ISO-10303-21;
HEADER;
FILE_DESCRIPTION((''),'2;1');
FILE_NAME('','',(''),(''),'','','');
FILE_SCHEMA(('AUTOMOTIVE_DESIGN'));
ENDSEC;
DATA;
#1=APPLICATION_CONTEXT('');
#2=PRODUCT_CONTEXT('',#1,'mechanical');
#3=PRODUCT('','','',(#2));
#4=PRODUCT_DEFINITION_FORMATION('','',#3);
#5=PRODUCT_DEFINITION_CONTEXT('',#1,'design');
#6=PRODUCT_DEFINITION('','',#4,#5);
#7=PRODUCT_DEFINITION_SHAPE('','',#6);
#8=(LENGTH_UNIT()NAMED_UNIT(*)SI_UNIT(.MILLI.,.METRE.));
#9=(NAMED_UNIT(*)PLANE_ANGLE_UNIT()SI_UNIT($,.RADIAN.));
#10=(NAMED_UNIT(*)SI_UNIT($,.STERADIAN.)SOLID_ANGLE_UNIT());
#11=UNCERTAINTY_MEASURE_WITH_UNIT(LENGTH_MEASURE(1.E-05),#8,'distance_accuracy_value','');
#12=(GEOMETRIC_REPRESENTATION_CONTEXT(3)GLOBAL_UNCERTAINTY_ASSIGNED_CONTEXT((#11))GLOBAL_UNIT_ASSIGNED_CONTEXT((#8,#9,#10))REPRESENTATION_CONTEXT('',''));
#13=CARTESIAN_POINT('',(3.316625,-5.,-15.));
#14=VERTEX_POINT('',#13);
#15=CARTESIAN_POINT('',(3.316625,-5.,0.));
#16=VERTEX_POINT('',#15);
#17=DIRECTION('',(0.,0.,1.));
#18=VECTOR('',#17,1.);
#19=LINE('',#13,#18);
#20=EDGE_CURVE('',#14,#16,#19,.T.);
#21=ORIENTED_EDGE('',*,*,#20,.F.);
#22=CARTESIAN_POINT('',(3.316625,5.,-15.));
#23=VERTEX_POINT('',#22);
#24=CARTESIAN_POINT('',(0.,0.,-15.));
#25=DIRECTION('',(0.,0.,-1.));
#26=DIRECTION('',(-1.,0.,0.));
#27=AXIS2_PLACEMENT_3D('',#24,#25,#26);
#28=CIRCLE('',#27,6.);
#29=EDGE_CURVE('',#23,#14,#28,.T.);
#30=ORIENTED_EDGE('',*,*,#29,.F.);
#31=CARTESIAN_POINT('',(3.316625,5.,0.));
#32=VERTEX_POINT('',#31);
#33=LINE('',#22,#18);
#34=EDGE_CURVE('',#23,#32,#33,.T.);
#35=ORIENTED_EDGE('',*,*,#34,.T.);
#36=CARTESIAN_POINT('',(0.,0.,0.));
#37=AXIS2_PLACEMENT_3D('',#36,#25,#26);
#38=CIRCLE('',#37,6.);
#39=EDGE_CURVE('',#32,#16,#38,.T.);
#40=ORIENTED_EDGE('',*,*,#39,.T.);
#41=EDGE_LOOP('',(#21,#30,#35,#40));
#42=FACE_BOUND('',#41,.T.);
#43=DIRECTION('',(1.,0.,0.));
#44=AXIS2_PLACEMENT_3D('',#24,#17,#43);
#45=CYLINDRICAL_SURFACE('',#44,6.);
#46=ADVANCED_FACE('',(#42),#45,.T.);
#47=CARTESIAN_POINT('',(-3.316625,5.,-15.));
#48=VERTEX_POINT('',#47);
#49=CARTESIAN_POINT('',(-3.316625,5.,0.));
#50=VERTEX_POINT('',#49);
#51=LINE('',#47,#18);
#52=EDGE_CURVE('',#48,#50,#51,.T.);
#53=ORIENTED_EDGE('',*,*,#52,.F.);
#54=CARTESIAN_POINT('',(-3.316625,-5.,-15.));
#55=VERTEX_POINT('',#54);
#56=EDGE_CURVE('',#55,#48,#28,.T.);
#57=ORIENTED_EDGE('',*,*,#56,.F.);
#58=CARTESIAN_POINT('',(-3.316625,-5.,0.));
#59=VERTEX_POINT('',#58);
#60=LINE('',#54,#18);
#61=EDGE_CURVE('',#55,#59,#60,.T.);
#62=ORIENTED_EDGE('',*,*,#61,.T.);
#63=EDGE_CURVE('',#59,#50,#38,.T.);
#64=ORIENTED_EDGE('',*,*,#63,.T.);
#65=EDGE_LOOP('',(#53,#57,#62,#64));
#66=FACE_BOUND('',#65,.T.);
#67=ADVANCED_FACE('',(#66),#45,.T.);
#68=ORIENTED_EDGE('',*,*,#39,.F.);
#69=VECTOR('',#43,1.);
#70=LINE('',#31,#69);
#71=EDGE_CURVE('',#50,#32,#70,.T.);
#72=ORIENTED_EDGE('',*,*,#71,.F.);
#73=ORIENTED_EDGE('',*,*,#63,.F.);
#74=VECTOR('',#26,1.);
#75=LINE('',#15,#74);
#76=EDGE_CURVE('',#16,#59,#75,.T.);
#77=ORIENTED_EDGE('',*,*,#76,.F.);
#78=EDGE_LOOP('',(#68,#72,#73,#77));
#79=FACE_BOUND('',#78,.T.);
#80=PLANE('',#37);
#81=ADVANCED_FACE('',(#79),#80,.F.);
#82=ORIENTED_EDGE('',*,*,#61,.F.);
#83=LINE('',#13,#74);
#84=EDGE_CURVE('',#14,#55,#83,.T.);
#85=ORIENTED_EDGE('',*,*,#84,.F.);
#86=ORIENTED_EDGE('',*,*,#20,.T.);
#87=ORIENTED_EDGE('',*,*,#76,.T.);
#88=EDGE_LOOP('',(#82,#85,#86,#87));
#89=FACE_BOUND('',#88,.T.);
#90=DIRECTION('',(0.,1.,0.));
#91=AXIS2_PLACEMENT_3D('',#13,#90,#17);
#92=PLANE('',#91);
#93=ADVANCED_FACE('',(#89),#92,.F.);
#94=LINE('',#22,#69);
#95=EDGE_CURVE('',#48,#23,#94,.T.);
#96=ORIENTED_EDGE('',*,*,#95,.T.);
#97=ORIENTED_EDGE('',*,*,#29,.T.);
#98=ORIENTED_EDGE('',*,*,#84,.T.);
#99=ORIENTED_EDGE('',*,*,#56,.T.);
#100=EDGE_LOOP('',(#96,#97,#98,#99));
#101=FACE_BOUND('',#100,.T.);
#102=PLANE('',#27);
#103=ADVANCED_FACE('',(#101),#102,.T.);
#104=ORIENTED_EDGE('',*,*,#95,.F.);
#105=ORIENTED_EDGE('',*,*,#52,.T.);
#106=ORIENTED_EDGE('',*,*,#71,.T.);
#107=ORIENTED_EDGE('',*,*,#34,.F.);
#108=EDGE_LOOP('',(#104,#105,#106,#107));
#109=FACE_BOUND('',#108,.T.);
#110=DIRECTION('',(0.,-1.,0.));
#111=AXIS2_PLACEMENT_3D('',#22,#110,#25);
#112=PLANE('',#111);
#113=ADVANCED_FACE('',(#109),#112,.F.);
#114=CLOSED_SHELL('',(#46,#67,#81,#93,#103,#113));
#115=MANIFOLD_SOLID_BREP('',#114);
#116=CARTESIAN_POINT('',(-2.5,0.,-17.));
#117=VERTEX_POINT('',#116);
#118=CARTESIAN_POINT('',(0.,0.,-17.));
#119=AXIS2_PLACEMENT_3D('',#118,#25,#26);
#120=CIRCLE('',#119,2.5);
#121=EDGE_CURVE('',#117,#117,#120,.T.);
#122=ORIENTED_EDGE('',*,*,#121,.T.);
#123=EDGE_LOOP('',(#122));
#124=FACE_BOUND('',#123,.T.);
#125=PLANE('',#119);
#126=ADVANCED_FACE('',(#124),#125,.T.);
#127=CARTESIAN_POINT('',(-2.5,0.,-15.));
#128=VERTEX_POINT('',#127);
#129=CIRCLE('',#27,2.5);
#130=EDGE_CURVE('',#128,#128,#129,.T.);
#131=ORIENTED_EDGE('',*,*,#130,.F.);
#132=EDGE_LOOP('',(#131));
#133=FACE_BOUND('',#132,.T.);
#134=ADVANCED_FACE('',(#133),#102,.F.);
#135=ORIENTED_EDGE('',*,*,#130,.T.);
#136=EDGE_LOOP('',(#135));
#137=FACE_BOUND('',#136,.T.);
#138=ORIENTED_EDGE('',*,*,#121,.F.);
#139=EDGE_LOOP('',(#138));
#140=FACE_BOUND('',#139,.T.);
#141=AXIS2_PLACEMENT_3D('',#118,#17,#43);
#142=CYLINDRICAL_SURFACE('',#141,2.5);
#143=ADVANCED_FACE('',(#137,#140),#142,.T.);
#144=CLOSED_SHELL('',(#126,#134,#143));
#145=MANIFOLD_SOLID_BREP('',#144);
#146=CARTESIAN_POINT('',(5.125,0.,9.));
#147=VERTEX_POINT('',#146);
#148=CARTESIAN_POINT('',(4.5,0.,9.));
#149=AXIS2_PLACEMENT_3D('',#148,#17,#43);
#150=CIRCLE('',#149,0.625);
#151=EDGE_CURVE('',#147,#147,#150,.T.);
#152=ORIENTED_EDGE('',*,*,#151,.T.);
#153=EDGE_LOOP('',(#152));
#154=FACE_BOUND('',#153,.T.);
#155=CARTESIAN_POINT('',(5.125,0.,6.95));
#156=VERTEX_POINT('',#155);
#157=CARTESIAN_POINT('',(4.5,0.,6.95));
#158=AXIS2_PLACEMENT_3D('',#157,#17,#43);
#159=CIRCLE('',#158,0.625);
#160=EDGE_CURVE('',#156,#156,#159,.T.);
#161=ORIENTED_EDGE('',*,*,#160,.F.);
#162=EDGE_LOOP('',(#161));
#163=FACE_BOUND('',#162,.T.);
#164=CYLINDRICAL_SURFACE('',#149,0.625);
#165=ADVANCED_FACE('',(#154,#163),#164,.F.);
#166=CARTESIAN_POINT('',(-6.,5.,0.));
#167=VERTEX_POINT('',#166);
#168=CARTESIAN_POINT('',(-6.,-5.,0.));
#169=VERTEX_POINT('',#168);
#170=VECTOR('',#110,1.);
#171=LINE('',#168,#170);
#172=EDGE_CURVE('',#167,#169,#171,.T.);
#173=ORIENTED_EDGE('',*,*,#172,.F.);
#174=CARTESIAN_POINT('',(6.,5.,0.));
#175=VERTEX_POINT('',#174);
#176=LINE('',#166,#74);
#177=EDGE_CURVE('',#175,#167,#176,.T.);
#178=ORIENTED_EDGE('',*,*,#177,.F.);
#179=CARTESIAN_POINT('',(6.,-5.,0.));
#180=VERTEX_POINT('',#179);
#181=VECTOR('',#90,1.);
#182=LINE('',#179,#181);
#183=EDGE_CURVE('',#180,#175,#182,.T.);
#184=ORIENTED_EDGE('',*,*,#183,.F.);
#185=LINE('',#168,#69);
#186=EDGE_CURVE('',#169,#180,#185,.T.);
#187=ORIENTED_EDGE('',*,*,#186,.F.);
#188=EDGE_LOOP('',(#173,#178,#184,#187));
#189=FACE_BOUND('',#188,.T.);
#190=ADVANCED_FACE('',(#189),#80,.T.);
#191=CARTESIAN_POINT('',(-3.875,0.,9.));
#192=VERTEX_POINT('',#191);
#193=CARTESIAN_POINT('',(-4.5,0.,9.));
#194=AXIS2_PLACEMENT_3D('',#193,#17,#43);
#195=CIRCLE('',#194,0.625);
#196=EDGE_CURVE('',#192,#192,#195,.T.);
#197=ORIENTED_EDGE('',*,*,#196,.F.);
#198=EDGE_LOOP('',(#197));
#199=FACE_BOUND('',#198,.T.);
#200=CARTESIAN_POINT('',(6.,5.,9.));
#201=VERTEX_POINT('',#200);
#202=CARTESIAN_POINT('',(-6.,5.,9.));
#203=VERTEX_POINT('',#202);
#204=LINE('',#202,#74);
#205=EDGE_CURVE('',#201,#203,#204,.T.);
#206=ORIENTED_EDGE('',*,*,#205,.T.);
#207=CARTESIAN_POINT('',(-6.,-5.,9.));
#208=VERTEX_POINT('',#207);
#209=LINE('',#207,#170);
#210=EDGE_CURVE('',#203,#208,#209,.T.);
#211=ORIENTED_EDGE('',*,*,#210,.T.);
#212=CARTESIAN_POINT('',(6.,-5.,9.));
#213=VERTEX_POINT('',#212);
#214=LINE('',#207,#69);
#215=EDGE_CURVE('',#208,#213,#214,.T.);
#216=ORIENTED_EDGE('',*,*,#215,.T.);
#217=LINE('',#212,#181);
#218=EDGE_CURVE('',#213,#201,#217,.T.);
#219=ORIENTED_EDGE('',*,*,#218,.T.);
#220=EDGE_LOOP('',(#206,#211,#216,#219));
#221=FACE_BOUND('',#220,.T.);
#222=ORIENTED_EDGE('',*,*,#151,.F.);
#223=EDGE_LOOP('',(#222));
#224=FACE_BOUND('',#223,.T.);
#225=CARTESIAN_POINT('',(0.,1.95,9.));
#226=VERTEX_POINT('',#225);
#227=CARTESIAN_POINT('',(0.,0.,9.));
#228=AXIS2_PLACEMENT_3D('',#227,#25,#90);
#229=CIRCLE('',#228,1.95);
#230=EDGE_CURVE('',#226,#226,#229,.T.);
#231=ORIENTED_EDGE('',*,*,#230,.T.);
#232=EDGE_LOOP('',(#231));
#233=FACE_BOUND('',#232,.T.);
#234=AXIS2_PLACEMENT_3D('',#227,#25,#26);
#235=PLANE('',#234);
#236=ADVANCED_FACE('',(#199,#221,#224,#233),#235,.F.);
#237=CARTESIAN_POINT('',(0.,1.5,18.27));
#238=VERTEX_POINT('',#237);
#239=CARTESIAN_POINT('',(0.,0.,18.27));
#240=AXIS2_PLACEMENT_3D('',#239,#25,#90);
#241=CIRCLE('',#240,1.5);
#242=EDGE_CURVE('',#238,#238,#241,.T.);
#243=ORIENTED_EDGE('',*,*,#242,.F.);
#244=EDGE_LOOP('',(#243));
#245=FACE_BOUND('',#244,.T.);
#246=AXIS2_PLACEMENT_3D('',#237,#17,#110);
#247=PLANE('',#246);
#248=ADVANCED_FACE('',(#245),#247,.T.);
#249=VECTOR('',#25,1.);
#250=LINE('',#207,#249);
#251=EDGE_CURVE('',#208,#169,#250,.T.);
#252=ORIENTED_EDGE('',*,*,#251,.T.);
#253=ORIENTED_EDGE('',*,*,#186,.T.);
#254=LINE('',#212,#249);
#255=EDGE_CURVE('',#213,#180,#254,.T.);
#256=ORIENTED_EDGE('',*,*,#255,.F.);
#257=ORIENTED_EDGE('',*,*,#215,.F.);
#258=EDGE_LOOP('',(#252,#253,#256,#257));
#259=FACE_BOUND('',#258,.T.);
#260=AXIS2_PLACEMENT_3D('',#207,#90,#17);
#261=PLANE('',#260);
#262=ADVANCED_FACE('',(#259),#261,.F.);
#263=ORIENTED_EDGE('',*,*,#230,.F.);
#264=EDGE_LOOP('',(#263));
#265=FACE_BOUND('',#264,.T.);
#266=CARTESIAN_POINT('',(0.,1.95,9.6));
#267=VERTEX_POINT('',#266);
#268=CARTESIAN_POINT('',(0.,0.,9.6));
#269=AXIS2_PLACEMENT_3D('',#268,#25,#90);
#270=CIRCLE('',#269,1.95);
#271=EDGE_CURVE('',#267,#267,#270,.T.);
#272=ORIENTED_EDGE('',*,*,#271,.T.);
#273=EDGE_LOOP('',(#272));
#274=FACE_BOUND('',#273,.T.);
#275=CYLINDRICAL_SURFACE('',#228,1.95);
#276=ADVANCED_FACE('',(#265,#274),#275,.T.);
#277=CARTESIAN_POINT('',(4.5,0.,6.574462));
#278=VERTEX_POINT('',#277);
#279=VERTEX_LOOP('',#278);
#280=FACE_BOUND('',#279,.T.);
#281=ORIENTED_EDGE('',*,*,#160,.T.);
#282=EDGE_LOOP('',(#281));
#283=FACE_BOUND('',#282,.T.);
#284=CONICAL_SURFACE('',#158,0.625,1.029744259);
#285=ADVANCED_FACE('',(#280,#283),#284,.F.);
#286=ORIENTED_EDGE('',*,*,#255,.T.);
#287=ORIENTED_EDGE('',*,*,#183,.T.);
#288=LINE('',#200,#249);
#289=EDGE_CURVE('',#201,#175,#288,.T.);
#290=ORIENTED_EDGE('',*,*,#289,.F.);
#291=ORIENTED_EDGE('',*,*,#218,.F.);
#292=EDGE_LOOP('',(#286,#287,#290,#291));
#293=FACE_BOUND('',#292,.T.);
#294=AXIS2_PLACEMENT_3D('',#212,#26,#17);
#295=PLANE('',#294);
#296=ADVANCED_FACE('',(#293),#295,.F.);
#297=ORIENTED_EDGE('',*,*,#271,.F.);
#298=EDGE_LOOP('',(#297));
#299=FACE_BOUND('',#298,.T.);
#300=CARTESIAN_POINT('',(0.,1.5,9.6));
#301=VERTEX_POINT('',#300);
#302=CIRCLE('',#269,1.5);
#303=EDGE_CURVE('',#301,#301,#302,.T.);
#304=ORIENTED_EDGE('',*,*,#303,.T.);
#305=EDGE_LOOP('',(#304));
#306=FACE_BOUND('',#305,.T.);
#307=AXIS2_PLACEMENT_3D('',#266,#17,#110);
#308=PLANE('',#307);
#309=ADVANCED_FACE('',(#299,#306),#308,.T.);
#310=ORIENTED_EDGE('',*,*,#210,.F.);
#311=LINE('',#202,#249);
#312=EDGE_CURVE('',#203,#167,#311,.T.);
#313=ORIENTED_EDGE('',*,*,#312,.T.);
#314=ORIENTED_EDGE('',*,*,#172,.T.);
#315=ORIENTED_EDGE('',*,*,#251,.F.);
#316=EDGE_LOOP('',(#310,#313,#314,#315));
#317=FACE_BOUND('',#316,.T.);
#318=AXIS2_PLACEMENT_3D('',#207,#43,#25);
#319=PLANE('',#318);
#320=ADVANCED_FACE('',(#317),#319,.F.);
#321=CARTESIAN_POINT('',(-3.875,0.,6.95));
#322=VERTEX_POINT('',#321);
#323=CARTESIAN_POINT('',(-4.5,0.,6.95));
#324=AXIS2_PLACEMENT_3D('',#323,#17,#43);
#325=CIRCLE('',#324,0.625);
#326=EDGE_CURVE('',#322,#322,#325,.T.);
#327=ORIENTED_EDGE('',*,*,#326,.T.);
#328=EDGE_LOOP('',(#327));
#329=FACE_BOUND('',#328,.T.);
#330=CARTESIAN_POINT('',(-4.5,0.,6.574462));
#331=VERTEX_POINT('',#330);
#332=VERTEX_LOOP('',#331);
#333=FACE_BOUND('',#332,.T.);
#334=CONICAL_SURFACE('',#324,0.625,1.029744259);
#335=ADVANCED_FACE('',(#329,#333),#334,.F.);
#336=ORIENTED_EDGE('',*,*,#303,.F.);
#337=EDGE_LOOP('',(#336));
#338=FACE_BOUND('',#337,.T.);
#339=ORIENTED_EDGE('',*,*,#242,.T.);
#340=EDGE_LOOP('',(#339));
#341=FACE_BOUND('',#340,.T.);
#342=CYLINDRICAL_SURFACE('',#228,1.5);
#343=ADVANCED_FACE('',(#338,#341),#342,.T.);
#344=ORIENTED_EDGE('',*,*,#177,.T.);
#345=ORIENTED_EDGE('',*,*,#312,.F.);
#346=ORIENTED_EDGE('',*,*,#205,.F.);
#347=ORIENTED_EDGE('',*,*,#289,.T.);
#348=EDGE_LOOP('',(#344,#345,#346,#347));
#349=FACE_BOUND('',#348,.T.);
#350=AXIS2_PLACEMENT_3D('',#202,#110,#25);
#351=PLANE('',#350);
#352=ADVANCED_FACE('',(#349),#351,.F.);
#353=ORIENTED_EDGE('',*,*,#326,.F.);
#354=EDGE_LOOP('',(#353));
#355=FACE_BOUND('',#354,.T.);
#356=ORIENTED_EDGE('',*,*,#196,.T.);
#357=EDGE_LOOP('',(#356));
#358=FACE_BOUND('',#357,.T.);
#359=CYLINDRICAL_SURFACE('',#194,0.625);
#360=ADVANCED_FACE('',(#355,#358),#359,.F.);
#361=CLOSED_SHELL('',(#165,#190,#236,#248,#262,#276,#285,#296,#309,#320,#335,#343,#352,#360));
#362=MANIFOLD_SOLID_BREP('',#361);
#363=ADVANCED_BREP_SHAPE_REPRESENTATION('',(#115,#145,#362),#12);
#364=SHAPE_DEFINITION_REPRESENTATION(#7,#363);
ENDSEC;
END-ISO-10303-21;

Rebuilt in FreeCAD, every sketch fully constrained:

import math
import FreeCAD as App
import Part
import Sketcher
from FreeCAD import Vector
Q = App.Units.Quantity

doc = App.newDocument("Part")
body = doc.addObject("PartDesign::Body", "Body")

# Sketch on XY plane
sketch1 = doc.addObject("Sketcher::SketchObject", "Sketch")
body.addObject(sketch1)
sketch1.AttachmentSupport = (doc.XY_Plane, [""])
sketch1.MapMode = "FlatFace"
sketch1.addGeometry(Part.LineSegment(Vector(-6, 5, 0), Vector(-6, -5, 0)), False)
sketch1.addGeometry(Part.LineSegment(Vector(-6, -5, 0), Vector(6, -5, 0)), False)
sketch1.addGeometry(Part.LineSegment(Vector(6, -5, 0), Vector(6, 5, 0)), False)
sketch1.addGeometry(Part.LineSegment(Vector(6, 5, 0), Vector(-6, 5, 0)), False)
sketch1.addConstraint(Sketcher.Constraint("Coincident", 0, 2, 1, 1))
sketch1.addConstraint(Sketcher.Constraint("Coincident", 1, 2, 2, 1))
sketch1.addConstraint(Sketcher.Constraint("Coincident", 2, 2, 3, 1))
sketch1.addConstraint(Sketcher.Constraint("Coincident", 3, 2, 0, 1))
sketch1.addConstraint(Sketcher.Constraint("Vertical", 0))
sketch1.addConstraint(Sketcher.Constraint("Horizontal", 1))
sketch1.addConstraint(Sketcher.Constraint("Vertical", 2))
sketch1.addConstraint(Sketcher.Constraint("Horizontal", 3))
sketch1.addConstraint(Sketcher.Constraint("Symmetric", 0, 2, 2, 2, -1, 1))
sketch1.addConstraint(Sketcher.Constraint("DistanceX", 1, 1, 1, 2, Q("12 mm")))
sketch1.addConstraint(Sketcher.Constraint("DistanceY", 0, 2, 0, 1, Q("10 mm")))
pad1 = doc.addObject("PartDesign::Pad", "Pad")
body.addObject(pad1)
pad1.Profile = sketch1
pad1.Length = 9

# Sketch on YZ plane
sketch2 = doc.addObject("Sketcher::SketchObject", "Sketch001")
body.addObject(sketch2)
sketch2.AttachmentSupport = (doc.YZ_Plane, [""])
sketch2.MapMode = "FlatFace"
sketch2.addGeometry(Part.LineSegment(Vector(0, 9, 0), Vector(1.95, 9, 0)), False)
sketch2.addGeometry(Part.LineSegment(Vector(1.95, 9, 0), Vector(1.95, 9.6, 0)), False)
sketch2.addGeometry(Part.LineSegment(Vector(1.95, 9.6, 0), Vector(1.5, 9.6, 0)), False)
sketch2.addGeometry(Part.LineSegment(Vector(1.5, 9.6, 0), Vector(1.5, 18.27, 0)), False)
sketch2.addGeometry(Part.LineSegment(Vector(1.5, 18.27, 0), Vector(0, 18.27, 0)), False)
sketch2.addGeometry(Part.LineSegment(Vector(0, 18.27, 0), Vector(0, 9, 0)), False)
sketch2.addConstraint(Sketcher.Constraint("Coincident", 0, 2, 1, 1))
sketch2.addConstraint(Sketcher.Constraint("Coincident", 1, 2, 2, 1))
sketch2.addConstraint(Sketcher.Constraint("Coincident", 2, 2, 3, 1))
sketch2.addConstraint(Sketcher.Constraint("Coincident", 3, 2, 4, 1))
sketch2.addConstraint(Sketcher.Constraint("Coincident", 4, 2, 5, 1))
sketch2.addConstraint(Sketcher.Constraint("Coincident", 5, 2, 0, 1))
sketch2.addConstraint(Sketcher.Constraint("Horizontal", 0))
sketch2.addConstraint(Sketcher.Constraint("Vertical", 1))
sketch2.addConstraint(Sketcher.Constraint("Horizontal", 2))
sketch2.addConstraint(Sketcher.Constraint("Vertical", 3))
sketch2.addConstraint(Sketcher.Constraint("Horizontal", 4))
sketch2.addConstraint(Sketcher.Constraint("Vertical", 5))
sketch2.addConstraint(Sketcher.Constraint("PointOnObject", 4, 2, -2))
sketch2.addConstraint(Sketcher.Constraint("DistanceX", 4, 2, 4, 1, Q("1.5 mm")))
sketch2.addConstraint(Sketcher.Constraint("DistanceY", 1, 1, 1, 2, Q("0.6 mm")))
sketch2.addConstraint(Sketcher.Constraint("DistanceY", -1, 1, 0, 2, Q("9 mm")))
sketch2.addConstraint(Sketcher.Constraint("DistanceX", 0, 1, 0, 2, Q("1.95 mm")))
sketch2.addConstraint(Sketcher.Constraint("DistanceY", 3, 1, 3, 2, Q("8.67 mm")))
revolution = doc.addObject("PartDesign::Revolution", "Revolution")
body.addObject(revolution)
revolution.Profile = sketch2
revolution.ReferenceAxis = (sketch2, ["V_Axis"])
revolution.Angle = 360

# Sketch on YZ plane
sketch3 = doc.addObject("Sketcher::SketchObject", "Sketch002")
body.addObject(sketch3)
sketch3.AttachmentSupport = (doc.YZ_Plane, [""])
sketch3.MapMode = "FlatFace"
sketch3.AttachmentOffset = App.Placement(Vector(0, 0, -4.5), App.Rotation())
sketch3.addGeometry(Part.LineSegment(Vector(0, 6.574462, 0), Vector(0, 9, 0)), False)
sketch3.addGeometry(Part.LineSegment(Vector(0, 9, 0), Vector(-0.625, 9, 0)), False)
sketch3.addGeometry(Part.LineSegment(Vector(-0.625, 9, 0), Vector(-0.625, 6.95, 0)), False)
sketch3.addGeometry(Part.LineSegment(Vector(-0.625, 6.95, 0), Vector(0, 6.574462, 0)), False)
sketch3.addConstraint(Sketcher.Constraint("Coincident", 0, 2, 1, 1))
sketch3.addConstraint(Sketcher.Constraint("Coincident", 1, 2, 2, 1))
sketch3.addConstraint(Sketcher.Constraint("Coincident", 2, 2, 3, 1))
sketch3.addConstraint(Sketcher.Constraint("Coincident", 3, 2, 0, 1))
sketch3.addConstraint(Sketcher.Constraint("Vertical", 0))
sketch3.addConstraint(Sketcher.Constraint("Horizontal", 1))
sketch3.addConstraint(Sketcher.Constraint("Vertical", 2))
sketch3.addConstraint(Sketcher.Constraint("PointOnObject", 0, 2, -2))
sketch3.addConstraint(Sketcher.Constraint("Angle", 3, Q("-31 deg")))
sketch3.addConstraint(Sketcher.Constraint("DistanceY", -1, 1, 0, 2, Q("9 mm")))
sketch3.addConstraint(Sketcher.Constraint("DistanceY", 2, 2, 2, 1, Q("2.05 mm")))
sketch3.addConstraint(Sketcher.Constraint("DistanceX", 1, 2, 1, 1, Q("0.625 mm")))
groove = doc.addObject("PartDesign::Groove", "Groove")
body.addObject(groove)
groove.Profile = sketch3
groove.ReferenceAxis = (sketch3, ["V_Axis"])
groove.Angle = 360
doc.recompute()

linearpattern = doc.addObject("PartDesign::LinearPattern", "LinearPattern")
body.addObject(linearpattern)
linearpattern.Originals = [groove]
linearpattern.Direction = (doc.X_Axis, [""])
linearpattern.Mode = "offset"
linearpattern.Offset = 9
linearpattern.Occurrences = 2
body.Tip = linearpattern
body2 = doc.addObject("PartDesign::Body", "Body001")

# Sketch on XY plane
sketch4 = doc.addObject("Sketcher::SketchObject", "Sketch003")
body2.addObject(sketch4)
sketch4.AttachmentSupport = (doc.getObject("XY_Plane001"), [""])
sketch4.MapMode = "FlatFace"
sketch4.addGeometry(Part.LineSegment(Vector(-3.316625, 5, 0), Vector(3.316625, 5, 0)), False)
sketch4.addGeometry(Part.ArcOfCircle(Part.Circle(Vector(0, 0, 0), Vector(0, 0, 1), 6), math.radians(-56.44269), math.radians(56.44269)), False)
sketch4.addGeometry(Part.LineSegment(Vector(3.316625, -5, 0), Vector(-3.316625, -5, 0)), False)
sketch4.addGeometry(Part.ArcOfCircle(Part.Circle(Vector(0, 0, 0), Vector(0, 0, 1), 6), math.radians(123.55731), math.radians(236.44269)), False)
sketch4.addConstraint(Sketcher.Constraint("Coincident", 0, 2, 1, 2))
sketch4.addConstraint(Sketcher.Constraint("Coincident", 1, 1, 2, 1))
sketch4.addConstraint(Sketcher.Constraint("Coincident", 2, 2, 3, 2))
sketch4.addConstraint(Sketcher.Constraint("Coincident", 3, 1, 0, 1))
sketch4.addConstraint(Sketcher.Constraint("Horizontal", 0))
sketch4.addConstraint(Sketcher.Constraint("Horizontal", 2))
sketch4.addConstraint(Sketcher.Constraint("Coincident", 1, 3, -1, 1))
sketch4.addConstraint(Sketcher.Constraint("Coincident", 3, 3, -1, 1))
sketch4.addConstraint(Sketcher.Constraint("Equal", 1, 3))
sketch4.addConstraint(Sketcher.Constraint("Vertical", 0, 2, 1, 1))
sketch4.addConstraint(Sketcher.Constraint("Radius", 1, Q("6 mm")))
sketch4.addConstraint(Sketcher.Constraint("DistanceY", -1, 1, 0, 2, Q("5 mm")))
pad2 = doc.addObject("PartDesign::Pad", "Pad001")
body2.addObject(pad2)
pad2.Profile = sketch4
pad2.Length = 15
pad2.Reversed = True
body3 = doc.addObject("PartDesign::Body", "Body002")

# Sketch on XY plane
sketch5 = doc.addObject("Sketcher::SketchObject", "Sketch004")
body3.addObject(sketch5)
sketch5.AttachmentSupport = (doc.getObject("XY_Plane002"), [""])
sketch5.MapMode = "FlatFace"
sketch5.AttachmentOffset = App.Placement(Vector(0, 0, -15), App.Rotation())
sketch5.addGeometry(Part.Circle(Vector(0, 0, 0), Vector(0, 0, 1), 2.5), False)
sketch5.addConstraint(Sketcher.Constraint("Coincident", 0, 3, -1, 1))
sketch5.addConstraint(Sketcher.Constraint("Diameter", 0, Q("5 mm")))
pad3 = doc.addObject("PartDesign::Pad", "Pad002")
body3.addObject(pad3)
pad3.Profile = sketch5
pad3.Length = 2
pad3.Reversed = True

doc.recompute()
